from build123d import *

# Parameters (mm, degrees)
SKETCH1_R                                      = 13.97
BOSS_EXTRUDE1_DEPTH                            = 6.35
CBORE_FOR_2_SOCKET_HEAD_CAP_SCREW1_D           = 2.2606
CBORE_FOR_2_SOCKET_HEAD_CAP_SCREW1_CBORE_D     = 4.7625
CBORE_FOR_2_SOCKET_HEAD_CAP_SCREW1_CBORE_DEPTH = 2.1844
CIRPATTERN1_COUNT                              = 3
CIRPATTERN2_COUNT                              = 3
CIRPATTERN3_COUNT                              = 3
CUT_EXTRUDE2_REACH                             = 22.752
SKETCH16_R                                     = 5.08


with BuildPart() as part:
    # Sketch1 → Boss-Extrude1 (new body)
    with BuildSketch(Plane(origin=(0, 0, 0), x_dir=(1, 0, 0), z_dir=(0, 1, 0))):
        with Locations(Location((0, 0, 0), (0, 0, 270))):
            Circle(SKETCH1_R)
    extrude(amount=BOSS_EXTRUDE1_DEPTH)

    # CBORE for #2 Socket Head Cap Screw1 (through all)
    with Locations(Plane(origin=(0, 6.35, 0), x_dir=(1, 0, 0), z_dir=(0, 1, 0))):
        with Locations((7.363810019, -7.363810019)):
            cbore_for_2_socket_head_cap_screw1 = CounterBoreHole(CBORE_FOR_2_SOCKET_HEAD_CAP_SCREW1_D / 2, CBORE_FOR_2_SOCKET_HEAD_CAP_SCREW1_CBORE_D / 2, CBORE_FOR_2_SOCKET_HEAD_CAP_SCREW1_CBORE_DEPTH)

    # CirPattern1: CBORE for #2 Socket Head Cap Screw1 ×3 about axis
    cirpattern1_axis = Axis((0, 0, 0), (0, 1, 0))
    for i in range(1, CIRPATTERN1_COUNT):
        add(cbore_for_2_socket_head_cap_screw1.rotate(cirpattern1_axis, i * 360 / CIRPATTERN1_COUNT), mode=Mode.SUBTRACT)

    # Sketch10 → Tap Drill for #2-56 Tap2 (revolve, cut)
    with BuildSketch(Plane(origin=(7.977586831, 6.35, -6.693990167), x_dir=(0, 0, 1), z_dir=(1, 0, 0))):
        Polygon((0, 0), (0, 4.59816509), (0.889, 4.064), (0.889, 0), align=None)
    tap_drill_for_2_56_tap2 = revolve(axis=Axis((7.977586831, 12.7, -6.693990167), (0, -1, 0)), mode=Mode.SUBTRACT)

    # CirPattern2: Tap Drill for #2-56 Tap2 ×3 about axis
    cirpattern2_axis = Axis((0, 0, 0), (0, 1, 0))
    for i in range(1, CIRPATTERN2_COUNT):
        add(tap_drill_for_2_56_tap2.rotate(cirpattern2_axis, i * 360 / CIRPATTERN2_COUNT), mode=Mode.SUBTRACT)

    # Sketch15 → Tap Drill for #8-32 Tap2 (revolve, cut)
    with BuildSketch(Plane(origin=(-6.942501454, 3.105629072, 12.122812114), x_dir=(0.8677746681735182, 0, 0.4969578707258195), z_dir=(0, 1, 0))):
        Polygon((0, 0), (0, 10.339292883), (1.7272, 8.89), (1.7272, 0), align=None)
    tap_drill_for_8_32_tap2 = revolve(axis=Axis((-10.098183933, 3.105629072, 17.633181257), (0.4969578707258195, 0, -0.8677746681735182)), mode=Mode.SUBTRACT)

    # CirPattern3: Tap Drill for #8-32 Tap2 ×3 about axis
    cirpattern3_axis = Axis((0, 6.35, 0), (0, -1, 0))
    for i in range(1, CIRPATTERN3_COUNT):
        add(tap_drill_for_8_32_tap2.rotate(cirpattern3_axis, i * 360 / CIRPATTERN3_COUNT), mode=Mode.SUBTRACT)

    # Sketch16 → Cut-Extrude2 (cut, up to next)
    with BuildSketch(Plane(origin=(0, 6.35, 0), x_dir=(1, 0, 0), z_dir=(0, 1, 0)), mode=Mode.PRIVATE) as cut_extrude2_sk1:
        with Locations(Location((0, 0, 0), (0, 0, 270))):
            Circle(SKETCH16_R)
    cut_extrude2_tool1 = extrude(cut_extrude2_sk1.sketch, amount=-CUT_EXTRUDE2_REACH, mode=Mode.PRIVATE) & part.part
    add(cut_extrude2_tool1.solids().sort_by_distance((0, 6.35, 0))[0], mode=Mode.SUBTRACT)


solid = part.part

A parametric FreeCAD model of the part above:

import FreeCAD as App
import Part
import Sketcher

V = App.Vector
Q = App.Units.Quantity


def add_polygon(sketch, points):
    """Adds a closed chain of lines whose ends are joined by coincident constraints."""
    first, n = sketch.GeometryCount, len(points)
    for a, b in zip(points, points[1:] + points[:1]):
        sketch.addGeometry(Part.LineSegment(App.Vector(*a, 0), App.Vector(*b, 0)), False)
    for i in range(n):
        sketch.addConstraint(Sketcher.Constraint("Coincident", first + i, 2, first + (i + 1) % n, 1))

doc = App.newDocument("Part")
body = doc.addObject("PartDesign::Body", "Body")

sketch1 = doc.addObject("Sketcher::SketchObject", "Sketch")
body.addObject(sketch1)
sketch1.AttachmentSupport = (doc.XZ_Plane, [""])
sketch1.MapMode = "FlatFace"
sketch1.addGeometry(Part.Circle(V(0, 0, 0), V(0, 0, 1), 14), False)
sketch1.addConstraint(Sketcher.Constraint("Coincident", 0, 3, -1, 1))
sketch1.addConstraint(Sketcher.Constraint("Diameter", 0, Q("1.1 in")))
pad1 = doc.addObject("PartDesign::Pad", "Pad")
body.addObject(pad1)
pad1.Profile = sketch1
pad1.Length = Q("0.25 in")
pad1.Reversed = True

sketch2 = doc.addObject("Sketcher::SketchObject", "Sketch001")
body.addObject(sketch2)
sketch2.AttachmentSupport = (doc.XZ_Plane, [""])
sketch2.MapMode = "FlatFace"
sketch2.AttachmentOffset = App.Placement(V(0, 0, -0.25 * 25.4), App.Rotation())
sketch2.addGeometry(Part.Circle(V(7.4, 7.4, 0), V(0, 0, 1), 1.1), False)
sketch2.addConstraint(Sketcher.Constraint("Diameter", 0, Q("0.089 in")))
sketch2.addConstraint(Sketcher.Constraint("DistanceX", -1, 1, 0, 3, 7.36381))
sketch2.addConstraint(Sketcher.Constraint("DistanceY", -1, 1, 0, 3, 7.36381))
doc.recompute()
hole = doc.addObject("PartDesign::Hole", "Hole")
body.addObject(hole)
hole.Profile = sketch2
hole.ThreadType = "None"
hole.Diameter = Q("0.089 in")
hole.DepthType = "ThroughAll"
hole.HoleCutType = "Counterbore"
hole.HoleCutDiameter = Q("0.1875 in")
hole.HoleCutDepth = Q("0.086 in")
hole.Reversed = True
doc.recompute()

polarpattern = doc.addObject("PartDesign::PolarPattern", "PolarPattern")
body.addObject(polarpattern)
polarpattern.Originals = [hole]
polarpattern.Axis = (doc.Y_Axis, [""])
polarpattern.Angle = 360
polarpattern.Occurrences = 3
body.Tip = polarpattern

sketch3 = doc.addObject("Sketcher::SketchObject", "Sketch002")
body.addObject(sketch3)
sketch3.AttachmentSupport = (doc.YZ_Plane, [""])
sketch3.MapMode = "FlatFace"
sketch3.AttachmentOffset = App.Placement(V(0, 0, 7.977587), App.Rotation())
add_polygon(sketch3, [(1.8, -6.7), (6.3, -6.7), (6.3, -5.8), (2.3, -5.8)])
sketch3.addGeometry(Part.LineSegment(V(6.3, -6.7, 0), V(1.8, -6.7, 0)), True)
sketch3.addConstraint(Sketcher.Constraint("Horizontal", 0))
sketch3.addConstraint(Sketcher.Constraint("Vertical", 1))
sketch3.addConstraint(Sketcher.Constraint("Horizontal", 2))
sketch3.addConstraint(Sketcher.Constraint("Horizontal", 4))
sketch3.addConstraint(Sketcher.Constraint("Coincident", 4, 1, 0, 2))
sketch3.addConstraint(Sketcher.Constraint("Equal", 0, 4))
sketch3.addConstraint(Sketcher.Constraint("Angle", 3, Q("-121 deg")))
sketch3.addConstraint(Sketcher.Constraint("DistanceX", 2, 2, 2, 1, Q("0.16 in")))
sketch3.addConstraint(Sketcher.Constraint("DistanceY", 1, 1, 1, 2, Q("0.035 in")))
sketch3.addConstraint(Sketcher.Constraint("DistanceX", -1, 1, 0, 2, Q("0.25 in")))
sketch3.addConstraint(Sketcher.Constraint("DistanceY", 0, 2, -1, 1, 6.69399))
groove = doc.addObject("PartDesign::Groove", "Groove")
body.addObject(groove)
groove.Profile = sketch3
groove.ReferenceAxis = (sketch3, ["Axis0"])
groove.Angle = 360
doc.recompute()

polarpattern2 = doc.addObject("PartDesign::PolarPattern", "PolarPattern001")
body.addObject(polarpattern2)
polarpattern2.Originals = [groove]
polarpattern2.Axis = (doc.Y_Axis, [""])
polarpattern2.Angle = 360
polarpattern2.Occurrences = 3
body.Tip = polarpattern2

sketch4 = doc.addObject("Sketcher::SketchObject", "Sketch003")
body.addObject(sketch4)
sketch4.AttachmentSupport = (doc.XZ_Plane, [""])
sketch4.MapMode = "FlatFace"
sketch4.AttachmentOffset = App.Placement(V(0, 0, -3.105629), App.Rotation())
add_polygon(sketch4, [(-1.8, 3.2), (-6.9, 12.1), (-5.4, 13), (-1, 5.3)])
sketch4.addGeometry(Part.LineSegment(V(-6.9, 12.1, 0), V(-1.8, 3.2, 0)), True)
sketch4.addConstraint(Sketcher.Constraint("Coincident", 4, 1, 0, 2))
sketch4.addConstraint(Sketcher.Constraint("Coincident", 4, 2, 3, 2))
sketch4.addConstraint(Sketcher.Constraint("Perpendicular", 0, 1))
sketch4.addConstraint(Sketcher.Constraint("Perpendicular", 1, 2))
sketch4.addConstraint(Sketcher.Constraint("Distance", 2, Q("0.35 in")))
sketch4.addConstraint(Sketcher.Constraint("Distance", 1, Q("0.068 in")))
sketch4.addConstraint(Sketcher.Constraint("Distance", 3, 2.254699))
sketch4.addConstraint(Sketcher.Constraint("DistanceX", 0, 2, -1, 1, 6.942501))
sketch4.addConstraint(Sketcher.Constraint("DistanceX", 1, 2, -1, 1, 5.443681))
sketch4.addConstraint(Sketcher.Constraint("DistanceY", -1, 1, 2, 2, 5.266641))
groove2 = doc.addObject("PartDesign::Groove", "Groove001")
body.addObject(groove2)
groove2.Profile = sketch4
groove2.ReferenceAxis = (sketch4, ["Axis0"])
groove2.Angle = 360
doc.recompute()

polarpattern3 = doc.addObject("PartDesign::PolarPattern", "PolarPattern002")
body.addObject(polarpattern3)
polarpattern3.Originals = [groove2]
polarpattern3.Axis = (doc.Y_Axis, [""])
polarpattern3.Angle = 360
polarpattern3.Occurrences = 3
body.Tip = polarpattern3

sketch5 = doc.addObject("Sketcher::SketchObject", "Sketch004")
body.addObject(sketch5)
sketch5.AttachmentSupport = (doc.XZ_Plane, [""])
sketch5.MapMode = "FlatFace"
sketch5.AttachmentOffset = App.Placement(V(0, 0, -0.25 * 25.4), App.Rotation())
sketch5.addGeometry(Part.Circle(V(0, 0, 0), V(0, 0, 1), 5), False)
sketch5.addConstraint(Sketcher.Constraint("Coincident", 0, 3, -1, 1))
sketch5.addConstraint(Sketcher.Constraint("Diameter", 0, Q("0.4 in")))
pocket1 = doc.addObject("PartDesign::Pocket", "Pocket")
body.addObject(pocket1)
pocket1.Profile = sketch5
pocket1.Type = "UpToFirst"
pocket1.Reversed = True

doc.recompute()
